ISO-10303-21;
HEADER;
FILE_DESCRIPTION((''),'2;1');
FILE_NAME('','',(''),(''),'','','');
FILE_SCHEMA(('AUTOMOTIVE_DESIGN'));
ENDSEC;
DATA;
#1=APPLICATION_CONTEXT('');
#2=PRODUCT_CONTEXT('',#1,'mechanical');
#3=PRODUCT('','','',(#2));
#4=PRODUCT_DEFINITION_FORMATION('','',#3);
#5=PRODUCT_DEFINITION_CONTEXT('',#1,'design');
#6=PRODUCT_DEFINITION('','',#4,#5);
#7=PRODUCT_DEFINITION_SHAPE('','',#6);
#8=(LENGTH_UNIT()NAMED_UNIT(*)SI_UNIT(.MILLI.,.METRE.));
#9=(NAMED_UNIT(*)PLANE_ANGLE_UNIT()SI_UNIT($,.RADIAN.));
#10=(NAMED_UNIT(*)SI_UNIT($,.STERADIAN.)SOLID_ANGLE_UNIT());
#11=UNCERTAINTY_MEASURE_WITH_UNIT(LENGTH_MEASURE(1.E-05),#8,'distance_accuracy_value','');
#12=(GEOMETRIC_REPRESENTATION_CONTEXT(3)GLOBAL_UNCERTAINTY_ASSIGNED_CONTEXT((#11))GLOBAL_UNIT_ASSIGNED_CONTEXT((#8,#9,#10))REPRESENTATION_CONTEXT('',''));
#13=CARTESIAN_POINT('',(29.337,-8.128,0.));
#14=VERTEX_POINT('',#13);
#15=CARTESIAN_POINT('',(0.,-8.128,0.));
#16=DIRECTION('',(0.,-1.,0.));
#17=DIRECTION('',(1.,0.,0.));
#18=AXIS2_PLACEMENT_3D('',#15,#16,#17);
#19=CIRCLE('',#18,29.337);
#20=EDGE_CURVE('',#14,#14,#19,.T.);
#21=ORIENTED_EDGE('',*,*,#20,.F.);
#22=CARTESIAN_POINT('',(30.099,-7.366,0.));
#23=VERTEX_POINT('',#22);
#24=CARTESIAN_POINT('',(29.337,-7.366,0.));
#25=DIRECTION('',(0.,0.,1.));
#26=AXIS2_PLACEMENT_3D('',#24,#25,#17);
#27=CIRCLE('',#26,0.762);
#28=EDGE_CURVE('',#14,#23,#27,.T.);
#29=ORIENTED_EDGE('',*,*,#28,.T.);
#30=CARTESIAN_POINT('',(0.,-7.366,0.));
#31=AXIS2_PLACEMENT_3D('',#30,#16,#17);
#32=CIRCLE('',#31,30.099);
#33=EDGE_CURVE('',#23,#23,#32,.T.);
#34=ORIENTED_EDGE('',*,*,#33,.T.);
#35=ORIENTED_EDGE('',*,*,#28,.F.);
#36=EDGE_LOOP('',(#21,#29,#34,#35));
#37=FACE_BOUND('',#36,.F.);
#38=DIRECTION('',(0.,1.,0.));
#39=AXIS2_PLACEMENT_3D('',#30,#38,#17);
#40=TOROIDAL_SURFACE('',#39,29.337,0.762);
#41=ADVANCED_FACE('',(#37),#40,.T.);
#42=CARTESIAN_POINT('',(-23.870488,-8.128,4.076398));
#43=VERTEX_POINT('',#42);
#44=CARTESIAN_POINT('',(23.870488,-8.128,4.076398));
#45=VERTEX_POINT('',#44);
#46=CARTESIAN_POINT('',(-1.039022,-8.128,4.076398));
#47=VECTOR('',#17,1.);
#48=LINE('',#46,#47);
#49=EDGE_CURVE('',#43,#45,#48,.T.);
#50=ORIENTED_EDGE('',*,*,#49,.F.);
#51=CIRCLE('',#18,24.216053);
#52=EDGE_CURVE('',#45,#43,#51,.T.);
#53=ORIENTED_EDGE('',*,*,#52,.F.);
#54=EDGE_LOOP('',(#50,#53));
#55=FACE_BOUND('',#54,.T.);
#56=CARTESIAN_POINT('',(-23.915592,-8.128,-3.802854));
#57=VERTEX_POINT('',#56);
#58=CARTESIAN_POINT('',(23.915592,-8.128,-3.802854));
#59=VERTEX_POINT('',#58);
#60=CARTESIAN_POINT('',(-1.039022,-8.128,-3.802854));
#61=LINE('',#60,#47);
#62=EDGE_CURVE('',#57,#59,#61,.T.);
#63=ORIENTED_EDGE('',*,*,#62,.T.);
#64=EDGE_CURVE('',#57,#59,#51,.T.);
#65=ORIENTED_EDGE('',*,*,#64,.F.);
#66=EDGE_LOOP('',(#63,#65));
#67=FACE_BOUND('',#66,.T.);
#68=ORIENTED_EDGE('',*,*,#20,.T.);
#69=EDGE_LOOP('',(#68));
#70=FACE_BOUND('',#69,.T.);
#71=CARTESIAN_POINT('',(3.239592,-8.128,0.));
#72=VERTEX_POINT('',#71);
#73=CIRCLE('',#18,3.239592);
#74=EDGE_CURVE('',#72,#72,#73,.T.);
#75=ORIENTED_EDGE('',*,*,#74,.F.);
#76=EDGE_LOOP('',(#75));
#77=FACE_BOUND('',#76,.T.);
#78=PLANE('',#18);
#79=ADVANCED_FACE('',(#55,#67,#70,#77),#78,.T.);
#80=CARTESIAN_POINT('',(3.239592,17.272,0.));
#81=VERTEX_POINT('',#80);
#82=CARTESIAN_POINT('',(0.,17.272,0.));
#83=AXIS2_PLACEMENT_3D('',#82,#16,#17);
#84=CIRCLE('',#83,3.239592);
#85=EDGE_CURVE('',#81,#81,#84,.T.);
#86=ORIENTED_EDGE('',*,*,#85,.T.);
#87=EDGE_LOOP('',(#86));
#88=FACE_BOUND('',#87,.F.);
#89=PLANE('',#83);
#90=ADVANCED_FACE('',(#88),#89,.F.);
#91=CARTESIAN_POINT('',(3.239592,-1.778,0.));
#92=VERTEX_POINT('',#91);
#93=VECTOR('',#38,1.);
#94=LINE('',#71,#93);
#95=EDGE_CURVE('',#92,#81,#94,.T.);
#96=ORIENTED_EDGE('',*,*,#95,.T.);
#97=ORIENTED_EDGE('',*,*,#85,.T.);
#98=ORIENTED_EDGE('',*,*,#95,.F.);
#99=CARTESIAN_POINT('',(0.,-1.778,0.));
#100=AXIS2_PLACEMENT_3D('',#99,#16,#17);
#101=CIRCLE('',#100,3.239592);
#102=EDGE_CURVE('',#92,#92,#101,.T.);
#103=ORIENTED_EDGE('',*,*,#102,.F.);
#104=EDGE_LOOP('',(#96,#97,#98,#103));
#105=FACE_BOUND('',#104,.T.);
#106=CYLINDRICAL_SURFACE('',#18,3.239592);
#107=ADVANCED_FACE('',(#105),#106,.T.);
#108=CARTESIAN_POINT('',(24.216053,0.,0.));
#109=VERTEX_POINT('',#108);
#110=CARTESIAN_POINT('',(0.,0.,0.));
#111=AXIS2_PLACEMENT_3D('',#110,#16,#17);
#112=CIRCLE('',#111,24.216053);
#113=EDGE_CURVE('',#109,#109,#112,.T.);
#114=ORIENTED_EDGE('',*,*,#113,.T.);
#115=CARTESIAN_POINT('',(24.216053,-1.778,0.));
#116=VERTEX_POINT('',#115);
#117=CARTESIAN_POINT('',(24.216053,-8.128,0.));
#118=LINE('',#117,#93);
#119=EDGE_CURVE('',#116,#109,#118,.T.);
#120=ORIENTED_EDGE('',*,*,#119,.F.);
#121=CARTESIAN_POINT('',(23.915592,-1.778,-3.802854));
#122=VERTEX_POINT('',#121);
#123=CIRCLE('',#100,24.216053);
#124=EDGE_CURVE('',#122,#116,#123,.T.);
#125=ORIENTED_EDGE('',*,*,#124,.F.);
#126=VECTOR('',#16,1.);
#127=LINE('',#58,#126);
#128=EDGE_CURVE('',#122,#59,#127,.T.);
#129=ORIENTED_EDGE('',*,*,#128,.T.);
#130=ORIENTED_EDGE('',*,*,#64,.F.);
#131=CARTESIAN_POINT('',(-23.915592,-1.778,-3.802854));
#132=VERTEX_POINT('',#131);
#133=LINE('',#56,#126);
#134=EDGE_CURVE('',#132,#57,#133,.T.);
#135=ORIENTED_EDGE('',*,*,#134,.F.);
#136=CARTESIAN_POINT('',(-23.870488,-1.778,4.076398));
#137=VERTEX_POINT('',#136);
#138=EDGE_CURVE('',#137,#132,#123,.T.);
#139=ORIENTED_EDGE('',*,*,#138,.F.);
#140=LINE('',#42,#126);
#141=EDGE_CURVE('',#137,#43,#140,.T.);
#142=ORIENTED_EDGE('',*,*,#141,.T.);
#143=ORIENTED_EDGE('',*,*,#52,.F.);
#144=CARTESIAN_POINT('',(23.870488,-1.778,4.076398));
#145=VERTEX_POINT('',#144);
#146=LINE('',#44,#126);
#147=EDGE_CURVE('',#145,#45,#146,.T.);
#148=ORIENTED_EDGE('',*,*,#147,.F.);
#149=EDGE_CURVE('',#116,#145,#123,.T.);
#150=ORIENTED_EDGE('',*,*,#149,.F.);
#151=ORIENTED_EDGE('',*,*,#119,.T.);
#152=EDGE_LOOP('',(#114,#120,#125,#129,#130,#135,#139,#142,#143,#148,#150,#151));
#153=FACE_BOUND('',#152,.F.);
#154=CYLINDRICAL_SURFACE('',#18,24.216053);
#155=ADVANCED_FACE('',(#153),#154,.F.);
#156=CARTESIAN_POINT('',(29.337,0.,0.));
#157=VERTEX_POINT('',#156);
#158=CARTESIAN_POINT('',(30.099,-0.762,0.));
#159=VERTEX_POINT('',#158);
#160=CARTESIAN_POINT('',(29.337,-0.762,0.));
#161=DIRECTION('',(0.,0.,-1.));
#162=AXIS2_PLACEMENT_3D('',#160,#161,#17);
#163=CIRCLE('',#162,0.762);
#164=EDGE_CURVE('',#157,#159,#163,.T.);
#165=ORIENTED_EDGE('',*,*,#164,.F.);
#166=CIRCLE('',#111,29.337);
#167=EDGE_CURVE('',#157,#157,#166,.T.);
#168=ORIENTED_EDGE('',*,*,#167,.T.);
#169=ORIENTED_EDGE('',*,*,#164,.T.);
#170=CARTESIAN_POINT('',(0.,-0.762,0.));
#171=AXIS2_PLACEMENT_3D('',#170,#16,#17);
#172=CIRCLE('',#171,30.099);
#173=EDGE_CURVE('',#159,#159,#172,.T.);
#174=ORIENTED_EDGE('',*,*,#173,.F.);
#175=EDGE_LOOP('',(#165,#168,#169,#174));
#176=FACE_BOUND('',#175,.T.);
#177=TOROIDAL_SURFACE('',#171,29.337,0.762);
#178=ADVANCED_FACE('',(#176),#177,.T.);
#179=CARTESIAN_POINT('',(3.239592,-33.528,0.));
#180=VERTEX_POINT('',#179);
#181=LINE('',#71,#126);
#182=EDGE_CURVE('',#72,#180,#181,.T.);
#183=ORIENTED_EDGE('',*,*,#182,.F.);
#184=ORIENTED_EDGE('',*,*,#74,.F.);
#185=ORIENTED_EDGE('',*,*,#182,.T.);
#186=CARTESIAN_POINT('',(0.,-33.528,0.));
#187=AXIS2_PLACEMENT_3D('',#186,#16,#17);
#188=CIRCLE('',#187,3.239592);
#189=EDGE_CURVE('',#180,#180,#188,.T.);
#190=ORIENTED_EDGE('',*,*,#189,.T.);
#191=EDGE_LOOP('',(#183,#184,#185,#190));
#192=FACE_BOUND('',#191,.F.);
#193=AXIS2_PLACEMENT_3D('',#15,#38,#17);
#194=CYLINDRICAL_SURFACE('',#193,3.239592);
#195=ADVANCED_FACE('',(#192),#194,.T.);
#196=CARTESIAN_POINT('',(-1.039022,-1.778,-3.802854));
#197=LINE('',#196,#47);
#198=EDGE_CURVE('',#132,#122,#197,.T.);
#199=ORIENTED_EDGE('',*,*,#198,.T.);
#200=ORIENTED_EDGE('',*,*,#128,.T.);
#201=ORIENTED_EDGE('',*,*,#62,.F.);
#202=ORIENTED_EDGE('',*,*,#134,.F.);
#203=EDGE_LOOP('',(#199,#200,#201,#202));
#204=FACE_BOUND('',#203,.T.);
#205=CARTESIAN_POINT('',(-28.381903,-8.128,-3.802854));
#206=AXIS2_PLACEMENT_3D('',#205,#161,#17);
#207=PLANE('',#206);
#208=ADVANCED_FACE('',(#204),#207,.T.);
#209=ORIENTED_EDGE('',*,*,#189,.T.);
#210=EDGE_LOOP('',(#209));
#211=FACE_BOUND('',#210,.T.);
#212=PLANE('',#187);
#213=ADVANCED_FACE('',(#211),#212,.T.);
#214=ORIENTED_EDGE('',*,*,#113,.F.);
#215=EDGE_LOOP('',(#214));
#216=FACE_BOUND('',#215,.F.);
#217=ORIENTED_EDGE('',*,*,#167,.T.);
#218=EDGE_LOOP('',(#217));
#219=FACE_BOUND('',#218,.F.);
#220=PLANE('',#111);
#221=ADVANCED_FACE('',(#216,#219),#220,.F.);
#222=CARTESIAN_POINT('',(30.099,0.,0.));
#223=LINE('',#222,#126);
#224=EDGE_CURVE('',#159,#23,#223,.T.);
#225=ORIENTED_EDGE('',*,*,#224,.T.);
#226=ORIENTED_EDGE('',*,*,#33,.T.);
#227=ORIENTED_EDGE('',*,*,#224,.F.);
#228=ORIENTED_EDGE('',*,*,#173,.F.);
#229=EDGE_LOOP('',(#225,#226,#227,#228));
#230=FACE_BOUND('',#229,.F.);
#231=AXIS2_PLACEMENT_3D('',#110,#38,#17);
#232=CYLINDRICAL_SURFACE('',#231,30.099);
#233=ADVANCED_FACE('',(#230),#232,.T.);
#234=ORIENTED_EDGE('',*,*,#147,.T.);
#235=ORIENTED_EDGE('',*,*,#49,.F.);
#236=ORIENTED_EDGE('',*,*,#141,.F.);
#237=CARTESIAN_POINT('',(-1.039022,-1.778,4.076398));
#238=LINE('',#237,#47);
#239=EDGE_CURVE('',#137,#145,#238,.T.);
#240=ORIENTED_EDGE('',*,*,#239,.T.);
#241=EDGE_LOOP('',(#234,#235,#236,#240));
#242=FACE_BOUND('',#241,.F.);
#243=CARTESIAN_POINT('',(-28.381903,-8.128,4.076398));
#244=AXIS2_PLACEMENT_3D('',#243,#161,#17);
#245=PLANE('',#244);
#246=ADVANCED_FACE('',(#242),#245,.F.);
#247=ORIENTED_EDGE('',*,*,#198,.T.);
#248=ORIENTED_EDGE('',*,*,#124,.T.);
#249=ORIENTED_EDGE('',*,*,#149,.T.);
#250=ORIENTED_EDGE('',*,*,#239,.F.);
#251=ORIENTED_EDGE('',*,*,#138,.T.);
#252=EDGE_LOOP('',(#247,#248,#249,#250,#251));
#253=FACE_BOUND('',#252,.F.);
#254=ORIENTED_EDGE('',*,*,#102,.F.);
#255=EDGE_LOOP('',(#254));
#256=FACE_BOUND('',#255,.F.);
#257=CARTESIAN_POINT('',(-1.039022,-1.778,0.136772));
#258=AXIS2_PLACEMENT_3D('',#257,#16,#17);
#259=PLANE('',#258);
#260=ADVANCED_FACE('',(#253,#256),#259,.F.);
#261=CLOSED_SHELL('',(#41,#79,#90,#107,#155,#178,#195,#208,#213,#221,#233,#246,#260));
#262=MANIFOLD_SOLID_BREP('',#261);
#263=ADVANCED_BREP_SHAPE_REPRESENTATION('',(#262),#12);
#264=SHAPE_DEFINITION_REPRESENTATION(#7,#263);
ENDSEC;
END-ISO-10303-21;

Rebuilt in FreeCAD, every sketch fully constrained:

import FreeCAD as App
import Part
import Sketcher
from FreeCAD import Vector
Q = App.Units.Quantity


def edges_at(feature, points):
    """Names of the edges that pass closest to the given points."""
    edges = feature.Shape.Edges
    near = lambda p: min(range(len(edges)), key=lambda i: edges[i].distToShape(Part.Vertex(*p))[0])
    return sorted({f"Edge{near(p) + 1}" for p in points})


def add_polygon(sketch, points):
    """Adds a closed chain of lines whose ends are joined by coincident constraints."""
    first, n = sketch.GeometryCount, len(points)
    for a, b in zip(points, points[1:] + points[:1]):
        sketch.addGeometry(Part.LineSegment(App.Vector(*a, 0), App.Vector(*b, 0)), False)
    for i in range(n):
        sketch.addConstraint(Sketcher.Constraint("Coincident", first + i, 2, first + (i + 1) % n, 1))

doc = App.newDocument("Part")
body = doc.addObject("PartDesign::Body", "Body")

# Sketch on XZ plane
sketch1 = body.newObject("Sketcher::SketchObject", "Sketch")
sketch1.AttachmentSupport = (doc.getObject("XZ_Plane"), [""])
sketch1.MapMode = "FlatFace"
sketch1.addGeometry(Part.Circle(Vector(0, 0, 0), Vector(0, 0, 1), 30), False)
sketch1.addConstraint(Sketcher.Constraint("Coincident", 0, 3, -1, 1))
sketch1.addConstraint(Sketcher.Constraint("Diameter", 0, Q("2.37 in")))
pad1 = body.newObject("PartDesign::Pad", "Pad")
pad1.Profile = sketch1
pad1.Length = Q("0.32 in")

# Sketch on XZ plane
sketch2 = body.newObject("Sketcher::SketchObject", "Sketch001")
sketch2.AttachmentSupport = (doc.getObject("XZ_Plane"), [""])
sketch2.MapMode = "FlatFace"
sketch2.AttachmentOffset = App.Placement(Vector(0, 0, 0.32 * 25.4), App.Rotation())
sketch2.addGeometry(Part.Circle(Vector(0, 0, 0), Vector(0, 0, 1), 24), False)
sketch2.addConstraint(Sketcher.Constraint("Coincident", 0, 3, -1, 1))
sketch2.addConstraint(Sketcher.Constraint("Diameter", 0, 48.432106))
pocket1 = body.newObject("PartDesign::Pocket", "Pocket")
pocket1.Profile = sketch2
pocket1.Length = Q("1 in")

# Sketch on XZ plane
sketch3 = body.newObject("Sketcher::SketchObject", "Sketch002")
sketch3.AttachmentSupport = (doc.getObject("XZ_Plane"), [""])
sketch3.MapMode = "FlatFace"
sketch3.AttachmentOffset = App.Placement(Vector(0, 0, 0.32 * 25.4), App.Rotation())
add_polygon(sketch3, [(-28, 4), (-28, -4), (26, -4), (26, 4)])  # lines 0-3
sketch3.addConstraint(Sketcher.Constraint("Vertical", 0))
sketch3.addConstraint(Sketcher.Constraint("Horizontal", 1))
sketch3.addConstraint(Sketcher.Constraint("Vertical", 2))
sketch3.addConstraint(Sketcher.Constraint("Horizontal", 3))
sketch3.addConstraint(Sketcher.Constraint("DistanceX", 1, 1, 1, 2, 54.685762))
sketch3.addConstraint(Sketcher.Constraint("DistanceY", -1, 1, 2, 2, 4.076398))
sketch3.addConstraint(Sketcher.Constraint("DistanceY", 0, 2, 0, 1, 7.879252))
sketch3.addConstraint(Sketcher.Constraint("DistanceX", -1, 1, 1, 2, 26.303859))
pad2 = body.newObject("PartDesign::Pad", "Pad001")
pad2.Profile = sketch3
pad2.Length = Q("0.25 in")
pad2.Reversed = True

# Sketch on XZ plane
sketch4 = body.newObject("Sketcher::SketchObject", "Sketch003")
sketch4.AttachmentSupport = (doc.getObject("XZ_Plane"), [""])
sketch4.MapMode = "FlatFace"
sketch4.AttachmentOffset = App.Placement(Vector(0, 0, 0.32 * 25.4), App.Rotation())
sketch4.addGeometry(Part.Circle(Vector(0, 0, 0), Vector(0, 0, 1), 3.2), False)
sketch4.addConstraint(Sketcher.Constraint("Coincident", 0, 3, -1, 1))
sketch4.addConstraint(Sketcher.Constraint("Diameter", 0, 6.479184))
pad3 = body.newObject("PartDesign::Pad", "Pad002")
pad3.Profile = sketch4
pad3.Length = Q("1 in")

# Sketch on XZ plane
sketch5 = body.newObject("Sketcher::SketchObject", "Sketch004")
sketch5.AttachmentSupport = (doc.getObject("XZ_Plane"), [""])
sketch5.MapMode = "FlatFace"
sketch5.AttachmentOffset = App.Placement(Vector(0, 0, 0.32 * 25.4), App.Rotation())
sketch5.addGeometry(Part.Circle(Vector(0, 0, 0), Vector(0, 0, 1), 3.2), False)
sketch5.addConstraint(Sketcher.Constraint("Coincident", 0, 3, -1, 1))
sketch5.addConstraint(Sketcher.Constraint("Diameter", 0, 6.479184))
pad4 = body.newObject("PartDesign::Pad", "Pad003")
pad4.Profile = sketch5
pad4.Length = Q("1 in")
pad4.Reversed = True
doc.recompute()

fillet = body.newObject("PartDesign::Fillet", "Fillet")
fillet.Base = (pad4, edges_at(pad4, [(-30.099, 0, 0), (-30.099, -8.128, 0)]))
fillet.Radius = Q("0.03 in")

doc.recompute()
